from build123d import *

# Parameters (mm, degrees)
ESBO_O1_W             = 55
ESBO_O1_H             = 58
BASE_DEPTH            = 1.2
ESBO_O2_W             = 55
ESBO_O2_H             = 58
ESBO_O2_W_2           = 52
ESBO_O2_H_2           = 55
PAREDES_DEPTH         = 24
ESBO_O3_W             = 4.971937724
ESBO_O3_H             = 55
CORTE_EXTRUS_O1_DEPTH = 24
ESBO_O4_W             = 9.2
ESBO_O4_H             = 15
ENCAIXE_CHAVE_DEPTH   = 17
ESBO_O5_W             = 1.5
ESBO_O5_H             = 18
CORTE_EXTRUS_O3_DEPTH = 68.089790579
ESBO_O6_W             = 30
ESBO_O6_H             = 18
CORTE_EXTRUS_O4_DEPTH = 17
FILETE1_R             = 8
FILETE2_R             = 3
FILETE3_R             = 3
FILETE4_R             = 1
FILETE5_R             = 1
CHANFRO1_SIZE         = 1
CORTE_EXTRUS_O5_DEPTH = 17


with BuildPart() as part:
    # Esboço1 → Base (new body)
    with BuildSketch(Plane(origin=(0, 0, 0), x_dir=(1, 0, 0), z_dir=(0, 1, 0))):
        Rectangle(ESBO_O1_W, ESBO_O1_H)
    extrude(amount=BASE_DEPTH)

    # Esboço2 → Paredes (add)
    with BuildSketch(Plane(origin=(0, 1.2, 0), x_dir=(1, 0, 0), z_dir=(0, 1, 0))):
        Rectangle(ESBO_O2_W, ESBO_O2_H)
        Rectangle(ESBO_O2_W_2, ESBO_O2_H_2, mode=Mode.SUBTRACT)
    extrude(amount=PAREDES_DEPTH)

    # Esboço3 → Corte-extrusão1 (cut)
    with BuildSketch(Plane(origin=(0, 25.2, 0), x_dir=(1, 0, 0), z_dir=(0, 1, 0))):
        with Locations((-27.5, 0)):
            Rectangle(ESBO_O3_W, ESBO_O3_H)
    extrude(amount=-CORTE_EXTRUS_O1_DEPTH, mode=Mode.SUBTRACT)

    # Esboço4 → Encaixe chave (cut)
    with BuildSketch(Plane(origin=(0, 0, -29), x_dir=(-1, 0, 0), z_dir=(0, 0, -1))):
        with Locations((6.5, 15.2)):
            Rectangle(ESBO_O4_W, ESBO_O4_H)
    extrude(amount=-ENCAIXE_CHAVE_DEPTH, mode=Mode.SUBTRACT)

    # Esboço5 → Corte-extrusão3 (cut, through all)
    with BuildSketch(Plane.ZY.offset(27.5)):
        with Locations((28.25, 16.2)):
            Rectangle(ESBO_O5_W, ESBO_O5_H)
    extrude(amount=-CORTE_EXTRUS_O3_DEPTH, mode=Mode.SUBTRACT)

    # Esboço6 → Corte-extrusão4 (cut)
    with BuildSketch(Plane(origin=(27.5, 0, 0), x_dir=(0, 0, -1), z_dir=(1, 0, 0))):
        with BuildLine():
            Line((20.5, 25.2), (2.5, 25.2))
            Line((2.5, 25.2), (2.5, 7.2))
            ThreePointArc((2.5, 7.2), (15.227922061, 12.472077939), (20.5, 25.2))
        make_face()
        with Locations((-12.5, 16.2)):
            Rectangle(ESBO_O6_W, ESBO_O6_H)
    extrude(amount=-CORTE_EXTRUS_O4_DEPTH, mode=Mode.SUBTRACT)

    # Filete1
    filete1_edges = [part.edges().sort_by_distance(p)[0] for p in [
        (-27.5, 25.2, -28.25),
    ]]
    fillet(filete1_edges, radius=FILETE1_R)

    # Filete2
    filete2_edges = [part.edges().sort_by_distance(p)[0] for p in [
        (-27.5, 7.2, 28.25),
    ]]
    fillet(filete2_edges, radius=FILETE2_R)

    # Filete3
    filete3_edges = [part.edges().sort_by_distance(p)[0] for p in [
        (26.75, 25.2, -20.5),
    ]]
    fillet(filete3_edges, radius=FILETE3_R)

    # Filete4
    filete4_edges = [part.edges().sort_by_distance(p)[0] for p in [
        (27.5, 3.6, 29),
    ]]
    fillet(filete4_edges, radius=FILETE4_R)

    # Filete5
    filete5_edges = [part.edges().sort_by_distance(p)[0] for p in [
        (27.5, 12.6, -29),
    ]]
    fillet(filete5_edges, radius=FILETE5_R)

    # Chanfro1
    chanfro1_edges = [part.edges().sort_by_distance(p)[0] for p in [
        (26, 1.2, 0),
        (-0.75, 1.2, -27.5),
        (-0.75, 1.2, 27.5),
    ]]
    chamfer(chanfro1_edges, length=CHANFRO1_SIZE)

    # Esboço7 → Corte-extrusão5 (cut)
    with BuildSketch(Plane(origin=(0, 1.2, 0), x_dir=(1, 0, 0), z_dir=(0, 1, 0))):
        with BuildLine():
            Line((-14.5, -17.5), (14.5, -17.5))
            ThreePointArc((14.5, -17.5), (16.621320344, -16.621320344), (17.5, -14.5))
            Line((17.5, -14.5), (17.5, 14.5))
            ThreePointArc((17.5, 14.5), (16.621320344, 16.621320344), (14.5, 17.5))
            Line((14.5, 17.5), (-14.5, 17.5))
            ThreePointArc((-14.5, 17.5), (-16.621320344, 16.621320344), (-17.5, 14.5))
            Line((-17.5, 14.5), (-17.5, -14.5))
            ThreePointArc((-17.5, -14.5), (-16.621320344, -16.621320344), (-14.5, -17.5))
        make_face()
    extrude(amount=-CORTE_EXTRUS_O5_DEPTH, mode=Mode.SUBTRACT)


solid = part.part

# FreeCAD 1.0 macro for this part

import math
import FreeCAD as App
import Part
import Sketcher


def edges_at(feature, points):
    """Names of the edges that pass closest to the given points."""
    edges = feature.Shape.Edges
    near = lambda p: min(range(len(edges)), key=lambda i: edges[i].distToShape(Part.Vertex(*p))[0])
    return sorted({f"Edge{near(p) + 1}" for p in points})

doc = App.newDocument("Part")
params = doc.addObject("Spreadsheet::Sheet", "Params")
for row, (alias, value) in enumerate([
    ("sketch1_width", "55 mm"),
    ("sketch1_height", "58 mm"),
    ("pad1_length", "1.2 mm"),
    ("sketch2_width", "55 mm"),
    ("sketch2_width2", "52 mm"),
    ("sketch2_height", "58 mm"),
    ("pad2_length", "24 mm"),
    ("sketch3_height", "55 mm"),
    ("pocket1_length", "24 mm"),
    ("sketch4_height", "15 mm"),
    ("sketch4_width", "9.2 mm"),
    ("pocket2_length", "17 mm"),
    ("sketch5_width", "18 mm"),
    ("sketch5_height", "1.5 mm"),
    ("sketch6_radius", "18 mm"),
    ("sketch6_height", "48 mm"),
    ("pocket4_length", "17 mm"),
    ("fillet_radius", "8 mm"),
    ("fillet2_radius", "3 mm"),
    ("fillet3_radius", "3 mm"),
    ("fillet4_radius", "1 mm"),
    ("fillet5_radius", "1 mm"),
    ("chamfer_size", "1 mm"),
    ("sketch7_radius", "3 mm"),
    ("sketch7_width", "29 mm"),
    ("pocket5_length", "17 mm"),
], start=1):
    params.set(f"A{row}", alias)
    params.set(f"B{row}", "=" + value)
    params.setAlias(f"B{row}", alias)

body = doc.addObject("PartDesign::Body", "Body")

# Sketch on XZ plane
sketch1 = body.newObject("Sketcher::SketchObject", "Sketch")
sketch1.AttachmentSupport = (doc.getObject("XZ_Plane"), [""])
sketch1.MapMode = "FlatFace"
sketch1.addGeometry([
    Part.LineSegment(App.Vector(-27.5, -29, 0), App.Vector(-27.5, 29, 0)),
    Part.LineSegment(App.Vector(-27.5, 29, 0), App.Vector(27.5, 29, 0)),
    Part.LineSegment(App.Vector(27.5, 29, 0), App.Vector(27.5, -29, 0)),
    Part.LineSegment(App.Vector(27.5, -29, 0), App.Vector(-27.5, -29, 0)),
], False)
sketch1.addConstraint([
    Sketcher.Constraint("Coincident", 0, 2, 1, 1),
    Sketcher.Constraint("Coincident", 1, 2, 2, 1),
    Sketcher.Constraint("Coincident", 2, 2, 3, 1),
    Sketcher.Constraint("Coincident", 3, 2, 0, 1),
    Sketcher.Constraint("Vertical", 0),
    Sketcher.Constraint("Horizontal", 1),
    Sketcher.Constraint("Vertical", 2),
    Sketcher.Constraint("Horizontal", 3),
    Sketcher.Constraint("Symmetric", 0, 2, 2, 2, -1, 1),
    Sketcher.Constraint("DistanceX", 1, 1, 1, 2, 55.0),
    Sketcher.Constraint("DistanceY", 0, 1, 0, 2, 58.0),
])
sketch1.setExpression("Constraints[9]", "Params.sketch1_width")
sketch1.setExpression("Constraints[10]", "Params.sketch1_height")
pad1 = body.newObject("PartDesign::Pad", "Pad")
pad1.Profile = sketch1
pad1.setExpression("Length", "Params.pad1_length")
pad1.Reversed = True

# Sketch on XZ plane
sketch2 = body.newObject("Sketcher::SketchObject", "Sketch001")
sketch2.AttachmentSupport = (doc.getObject("XZ_Plane"), [""])
sketch2.MapMode = "FlatFace"
sketch2.AttachmentOffset = App.Placement(App.Vector(0, 0, -1.2), App.Rotation())
sketch2.addGeometry([
    Part.LineSegment(App.Vector(-27.5, -29, 0), App.Vector(-27.5, 29, 0)),  # 0
    Part.LineSegment(App.Vector(-27.5, 29, 0), App.Vector(27.5, 29, 0)),  # 1
    Part.LineSegment(App.Vector(27.5, 29, 0), App.Vector(27.5, -29, 0)),  # 2
    Part.LineSegment(App.Vector(27.5, -29, 0), App.Vector(-27.5, -29, 0)),  # 3
    Part.LineSegment(App.Vector(26, 27.5, 0), App.Vector(-26, 27.5, 0)),  # 4
    Part.LineSegment(App.Vector(-26, 27.5, 0), App.Vector(-26, -27.5, 0)),  # 5
    Part.LineSegment(App.Vector(-26, -27.5, 0), App.Vector(26, -27.5, 0)),  # 6
    Part.LineSegment(App.Vector(26, -27.5, 0), App.Vector(26, 27.5, 0)),  # 7
], False)
sketch2.addConstraint([
    Sketcher.Constraint("Coincident", 0, 2, 1, 1),
    Sketcher.Constraint("Coincident", 1, 2, 2, 1),
    Sketcher.Constraint("Coincident", 2, 2, 3, 1),
    Sketcher.Constraint("Coincident", 3, 2, 0, 1),
    Sketcher.Constraint("Coincident", 4, 2, 5, 1),
    Sketcher.Constraint("Coincident", 5, 2, 6, 1),
    Sketcher.Constraint("Coincident", 6, 2, 7, 1),
    Sketcher.Constraint("Coincident", 7, 2, 4, 1),
    Sketcher.Constraint("Vertical", 0),
    Sketcher.Constraint("Horizontal", 1),
    Sketcher.Constraint("Vertical", 2),
    Sketcher.Constraint("Horizontal", 3),
    Sketcher.Constraint("Horizontal", 4),
    Sketcher.Constraint("Vertical", 5),
    Sketcher.Constraint("Horizontal", 6),
    Sketcher.Constraint("Vertical", 7),
    Sketcher.Constraint("Symmetric", 0, 2, 2, 2, -1, 1),
    Sketcher.Constraint("Symmetric", 4, 2, 6, 2, -1, 1),
    Sketcher.Constraint("Equal", 3, 5),
    Sketcher.Constraint("DistanceX", 1, 1, 1, 2, 55.0),
    Sketcher.Constraint("DistanceX", 4, 2, 4, 1, 52.0),
    Sketcher.Constraint("DistanceY", 0, 1, 0, 2, 58.0),
])
sketch2.setExpression("Constraints[19]", "Params.sketch2_width")
sketch2.setExpression("Constraints[20]", "Params.sketch2_width2")
sketch2.setExpression("Constraints[21]", "Params.sketch2_height")
pad2 = body.newObject("PartDesign::Pad", "Pad001")
pad2.Profile = sketch2
pad2.setExpression("Length", "Params.pad2_length")
pad2.Reversed = True

# Sketch on XZ plane
sketch3 = body.newObject("Sketcher::SketchObject", "Sketch002")
sketch3.AttachmentSupport = (doc.getObject("XZ_Plane"), [""])
sketch3.MapMode = "FlatFace"
sketch3.AttachmentOffset = App.Placement(App.Vector(0, 0, -25.2), App.Rotation())
sketch3.addGeometry([
    Part.LineSegment(App.Vector(-29.985969, -27.5, 0), App.Vector(-29.985969, 27.5, 0)),
    Part.LineSegment(App.Vector(-29.985969, 27.5, 0), App.Vector(-25.014031, 27.5, 0)),
    Part.LineSegment(App.Vector(-25.014031, 27.5, 0), App.Vector(-25.014031, -27.5, 0)),
    Part.LineSegment(App.Vector(-25.014031, -27.5, 0), App.Vector(-29.985969, -27.5, 0)),
], False)
sketch3.addConstraint([
    Sketcher.Constraint("Coincident", 0, 2, 1, 1),
    Sketcher.Constraint("Coincident", 1, 2, 2, 1),
    Sketcher.Constraint("Coincident", 2, 2, 3, 1),
    Sketcher.Constraint("Coincident", 3, 2, 0, 1),
    Sketcher.Constraint("Vertical", 0),
    Sketcher.Constraint("Horizontal", 1),
    Sketcher.Constraint("Vertical", 2),
    Sketcher.Constraint("Horizontal", 3),
    Sketcher.Constraint("DistanceY", 0, 1, 0, 2, 55.0),
    Sketcher.Constraint("DistanceY", -1, 1, 0, 2, 27.5),
    Sketcher.Constraint("DistanceX", 1, 1, 1, 2, 4.971938),
    Sketcher.Constraint("DistanceX", 0, 2, -1, 1, 29.985969),
])
sketch3.setExpression("Constraints[8]", "Params.sketch3_height")
pocket1 = body.newObject("PartDesign::Pocket", "Pocket")
pocket1.Profile = sketch3
pocket1.setExpression("Length", "Params.pocket1_length")
pocket1.Reversed = True

# Sketch on XY plane
sketch4 = body.newObject("Sketcher::SketchObject", "Sketch003")
sketch4.AttachmentSupport = (doc.getObject("XY_Plane"), [""])
sketch4.MapMode = "FlatFace"
sketch4.AttachmentOffset = App.Placement(App.Vector(0, 0, -29), App.Rotation())
sketch4.addGeometry([
    Part.LineSegment(App.Vector(-1.9, 22.7, 0), App.Vector(-1.9, 7.7, 0)),
    Part.LineSegment(App.Vector(-1.9, 7.7, 0), App.Vector(-11.1, 7.7, 0)),
    Part.LineSegment(App.Vector(-11.1, 7.7, 0), App.Vector(-11.1, 22.7, 0)),
    Part.LineSegment(App.Vector(-11.1, 22.7, 0), App.Vector(-1.9, 22.7, 0)),
], False)
sketch4.addConstraint([
    Sketcher.Constraint("Coincident", 0, 2, 1, 1),
    Sketcher.Constraint("Coincident", 1, 2, 2, 1),
    Sketcher.Constraint("Coincident", 2, 2, 3, 1),
    Sketcher.Constraint("Coincident", 3, 2, 0, 1),
    Sketcher.Constraint("Vertical", 0),
    Sketcher.Constraint("Horizontal", 1),
    Sketcher.Constraint("Vertical", 2),
    Sketcher.Constraint("Horizontal", 3),
    Sketcher.Constraint("DistanceY", 0, 2, 0, 1, 15.0),
    Sketcher.Constraint("DistanceX", 1, 2, 1, 1, 9.2),
    Sketcher.Constraint("DistanceX", 0, 2, -1, 1, 1.9),
    Sketcher.Constraint("DistanceY", -1, 1, 0, 2, 7.7),
])
sketch4.setExpression("Constraints[8]", "Params.sketch4_height")
sketch4.setExpression("Constraints[9]", "Params.sketch4_width")
pocket2 = body.newObject("PartDesign::Pocket", "Pocket001")
pocket2.Profile = sketch4
pocket2.setExpression("Length", "Params.pocket2_length")
pocket2.Reversed = True

# Sketch on YZ plane
sketch5 = body.newObject("Sketcher::SketchObject", "Sketch004")
sketch5.AttachmentSupport = (doc.getObject("YZ_Plane"), [""])
sketch5.MapMode = "FlatFace"
sketch5.AttachmentOffset = App.Placement(App.Vector(0, 0, -27.5), App.Rotation())
sketch5.addGeometry([
    Part.LineSegment(App.Vector(25.2, 27.5, 0), App.Vector(7.2, 27.5, 0)),
    Part.LineSegment(App.Vector(7.2, 27.5, 0), App.Vector(7.2, 29, 0)),
    Part.LineSegment(App.Vector(7.2, 29, 0), App.Vector(25.2, 29, 0)),
    Part.LineSegment(App.Vector(25.2, 29, 0), App.Vector(25.2, 27.5, 0)),
], False)
sketch5.addConstraint([
    Sketcher.Constraint("Coincident", 0, 2, 1, 1),
    Sketcher.Constraint("Coincident", 1, 2, 2, 1),
    Sketcher.Constraint("Coincident", 2, 2, 3, 1),
    Sketcher.Constraint("Coincident", 3, 2, 0, 1),
    Sketcher.Constraint("Horizontal", 0),
    Sketcher.Constraint("Vertical", 1),
    Sketcher.Constraint("Horizontal", 2),
    Sketcher.Constraint("Vertical", 3),
    Sketcher.Constraint("DistanceX", 0, 2, 0, 1, 18.0),
    Sketcher.Constraint("DistanceY", 1, 1, 1, 2, 1.5),
    Sketcher.Constraint("DistanceY", -1, 1, 1, 2, 29.0),
    Sketcher.Constraint("DistanceX", -1, 1, 0, 2, 7.2),
])
sketch5.setExpression("Constraints[8]", "Params.sketch5_width")
sketch5.setExpression("Constraints[9]", "Params.sketch5_height")
pocket3 = body.newObject("PartDesign::Pocket", "Pocket002")
pocket3.Profile = sketch5
pocket3.Type = "ThroughAll"
pocket3.Reversed = True

# Sketch on YZ plane
sketch6 = body.newObject("Sketcher::SketchObject", "Sketch005")
sketch6.AttachmentSupport = (doc.getObject("YZ_Plane"), [""])
sketch6.MapMode = "FlatFace"
sketch6.AttachmentOffset = App.Placement(App.Vector(0, 0, 27.5), App.Rotation())
sketch6.addGeometry([
    Part.LineSegment(App.Vector(25.2, -20.5, 0), App.Vector(25.2, 27.5, 0)),
    Part.LineSegment(App.Vector(25.2, 27.5, 0), App.Vector(7.2, 27.5, 0)),
    Part.LineSegment(App.Vector(7.2, 27.5, 0), App.Vector(7.2, -2.5, 0)),
    Part.ArcOfCircle(Part.Circle(App.Vector(25.2, -2.5, 0), App.Vector(0, 0, 1), 18), math.radians(-180), math.radians(-90)),
], False)
sketch6.addConstraint([
    Sketcher.Constraint("Coincident", 0, 2, 1, 1),
    Sketcher.Constraint("Coincident", 1, 2, 2, 1),
    Sketcher.Constraint("Tangent", 2, 2, 3, 1),
    Sketcher.Constraint("Coincident", 3, 2, 0, 1),
    Sketcher.Constraint("Vertical", 0),
    Sketcher.Constraint("Horizontal", 1),
    Sketcher.Constraint("Vertical", 2),
    Sketcher.Constraint("Vertical", 3, 3, 0, 2),
    Sketcher.Constraint("Radius", 3, 18.0),
    Sketcher.Constraint("DistanceY", 0, 1, 0, 2, 48.0),
    Sketcher.Constraint("DistanceX", -1, 1, 3, 3, 25.2),
    Sketcher.Constraint("DistanceY", 3, 3, -1, 1, 2.5),
])
sketch6.setExpression("Constraints[8]", "Params.sketch6_radius")
sketch6.setExpression("Constraints[9]", "Params.sketch6_height")
pocket4 = body.newObject("PartDesign::Pocket", "Pocket003")
pocket4.Profile = sketch6
pocket4.setExpression("Length", "Params.pocket4_length")
doc.recompute()

fillet = body.newObject("PartDesign::Fillet", "Fillet")
fillet.Base = (pocket4, edges_at(pocket4, [(-27.5, 25.2, -28.25)]))
fillet.setExpression("Radius", "Params.fillet_radius")
doc.recompute()

fillet2 = body.newObject("PartDesign::Fillet", "Fillet001")
fillet2.Base = (fillet, edges_at(fillet, [(-27.5, 7.2, 28.25)]))
fillet2.setExpression("Radius", "Params.fillet2_radius")
doc.recompute()

fillet3 = body.newObject("PartDesign::Fillet", "Fillet002")
fillet3.Base = (fillet2, edges_at(fillet2, [(26.75, 25.2, -20.5)]))
fillet3.setExpression("Radius", "Params.fillet3_radius")
doc.recompute()

fillet4 = body.newObject("PartDesign::Fillet", "Fillet003")
fillet4.Base = (fillet3, edges_at(fillet3, [(27.5, 3.6, 29)]))
fillet4.setExpression("Radius", "Params.fillet4_radius")
doc.recompute()

fillet5 = body.newObject("PartDesign::Fillet", "Fillet004")
fillet5.Base = (fillet4, edges_at(fillet4, [(27.5, 12.6, -29)]))
fillet5.setExpression("Radius", "Params.fillet5_radius")
doc.recompute()

chamfer = body.newObject("PartDesign::Chamfer", "Chamfer")
chamfer.Base = (fillet5, edges_at(fillet5, [(26, 1.2, 0), (-0.75, 1.2, -27.5), (-0.75, 1.2, 27.5)]))
chamfer.setExpression("Size", "Params.chamfer_size")

# Sketch on XZ plane
sketch7 = body.newObject("Sketcher::SketchObject", "Sketch006")
sketch7.AttachmentSupport = (doc.getObject("XZ_Plane"), [""])
sketch7.MapMode = "FlatFace"
sketch7.AttachmentOffset = App.Placement(App.Vector(0, 0, -1.2), App.Rotation())
sketch7.addGeometry([
    Part.LineSegment(App.Vector(-14.5, 17.5, 0), App.Vector(14.5, 17.5, 0)),  # 0
    Part.ArcOfCircle(Part.Circle(App.Vector(14.5, 14.5, 0), App.Vector(0, 0, 1), 3), math.radians(0), math.radians(90)),  # 1
    Part.LineSegment(App.Vector(17.5, 14.5, 0), App.Vector(17.5, -14.5, 0)),  # 2
    Part.ArcOfCircle(Part.Circle(App.Vector(14.5, -14.5, 0), App.Vector(0, 0, 1), 3), math.radians(-90), math.radians(0)),  # 3
    Part.LineSegment(App.Vector(14.5, -17.5, 0), App.Vector(-14.5, -17.5, 0)),  # 4
    Part.ArcOfCircle(Part.Circle(App.Vector(-14.5, -14.5, 0), App.Vector(0, 0, 1), 3), math.radians(180), math.radians(270)),  # 5
    Part.LineSegment(App.Vector(-17.5, -14.5, 0), App.Vector(-17.5, 14.5, 0)),  # 6
    Part.ArcOfCircle(Part.Circle(App.Vector(-14.5, 14.5, 0), App.Vector(0, 0, 1), 3), math.radians(90), math.radians(180)),  # 7
], False)
sketch7.addConstraint([
    Sketcher.Constraint("Tangent", 0, 2, 1, 2),
    Sketcher.Constraint("Tangent", 1, 1, 2, 1),
    Sketcher.Constraint("Tangent", 2, 2, 3, 2),
    Sketcher.Constraint("Tangent", 3, 1, 4, 1),
    Sketcher.Constraint("Tangent", 4, 2, 5, 2),
    Sketcher.Constraint("Tangent", 5, 1, 6, 1),
    Sketcher.Constraint("Tangent", 6, 2, 7, 2),
    Sketcher.Constraint("Tangent", 7, 1, 0, 1),
    Sketcher.Constraint("Horizontal", 0),
    Sketcher.Constraint("Vertical", 2),
    Sketcher.Constraint("Horizontal", 4),
    Sketcher.Constraint("Vertical", 6),
    Sketcher.Constraint("Equal", 1, 3),
    Sketcher.Constraint("Equal", 3, 5),
    Sketcher.Constraint("Equal", 5, 7),
    Sketcher.Constraint("Symmetric", 1, 3, 5, 3, -1, 1),
    Sketcher.Constraint("Equal", 4, 2),
    Sketcher.Constraint("Radius", 1, 3.0),
    Sketcher.Constraint("DistanceX", 0, 1, 0, 2, 29.0),
])
sketch7.setExpression("Constraints[17]", "Params.sketch7_radius")
sketch7.setExpression("Constraints[18]", "Params.sketch7_width")
pocket5 = body.newObject("PartDesign::Pocket", "Pocket004")
pocket5.Profile = sketch7
pocket5.setExpression("Length", "Params.pocket5_length")
pocket5.Reversed = True

doc.recompute()
